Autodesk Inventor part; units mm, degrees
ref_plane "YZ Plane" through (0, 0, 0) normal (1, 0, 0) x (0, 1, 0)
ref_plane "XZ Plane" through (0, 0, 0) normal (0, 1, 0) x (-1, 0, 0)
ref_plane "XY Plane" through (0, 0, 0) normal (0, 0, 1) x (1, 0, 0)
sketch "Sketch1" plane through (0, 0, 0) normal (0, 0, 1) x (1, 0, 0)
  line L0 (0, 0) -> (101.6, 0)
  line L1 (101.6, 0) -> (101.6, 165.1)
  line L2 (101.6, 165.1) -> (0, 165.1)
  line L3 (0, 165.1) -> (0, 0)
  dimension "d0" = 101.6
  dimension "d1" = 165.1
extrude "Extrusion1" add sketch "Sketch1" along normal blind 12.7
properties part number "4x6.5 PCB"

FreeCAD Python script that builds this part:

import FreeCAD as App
import Part
import Sketcher
Q = App.Units.Quantity

doc = App.newDocument("Part")
body = doc.addObject("PartDesign::Body", "Body")

sketch1 = body.newObject("Sketcher::SketchObject", "Sketch")
sketch1.AttachmentSupport = (doc.getObject("XY_Plane"), [""])
sketch1.MapMode = "FlatFace"
sketch1.addGeometry([
    Part.LineSegment(App.Vector(0, 165, 0), App.Vector(0, 0, 0)),
    Part.LineSegment(App.Vector(0, 0, 0), App.Vector(102, 0, 0)),
    Part.LineSegment(App.Vector(102, 0, 0), App.Vector(102, 165, 0)),
    Part.LineSegment(App.Vector(102, 165, 0), App.Vector(0, 165, 0)),
], False)
sketch1.addConstraint([
    Sketcher.Constraint("Coincident", 0, 2, 1, 1),
    Sketcher.Constraint("Coincident", 1, 2, 2, 1),
    Sketcher.Constraint("Coincident", 2, 2, 3, 1),
    Sketcher.Constraint("Coincident", 3, 2, 0, 1),
    Sketcher.Constraint("Vertical", 0),
    Sketcher.Constraint("Horizontal", 1),
    Sketcher.Constraint("Vertical", 2),
    Sketcher.Constraint("Horizontal", 3),
    Sketcher.Constraint("Coincident", 0, 2, -1, 1),
    Sketcher.Constraint("DistanceX", 1, 1, 1, 2, Q("4 in")),
    Sketcher.Constraint("DistanceY", 0, 2, 0, 1, Q("6.5 in")),
])
pad1 = body.newObject("PartDesign::Pad", "Pad")
pad1.Profile = sketch1
pad1.Length = Q("0.5 in")

doc.recompute()
